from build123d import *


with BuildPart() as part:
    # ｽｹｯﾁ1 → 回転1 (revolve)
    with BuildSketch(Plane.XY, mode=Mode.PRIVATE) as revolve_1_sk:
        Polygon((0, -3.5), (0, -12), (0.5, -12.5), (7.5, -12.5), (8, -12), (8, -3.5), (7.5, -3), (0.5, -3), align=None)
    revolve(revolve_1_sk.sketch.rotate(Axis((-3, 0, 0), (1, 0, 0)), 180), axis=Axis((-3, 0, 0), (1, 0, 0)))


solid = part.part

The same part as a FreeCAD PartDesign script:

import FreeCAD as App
import Part
import Sketcher
Q = App.Units.Quantity

doc = App.newDocument("Part")
body = doc.addObject("PartDesign::Body", "Body")

sketch1 = doc.addObject("Sketcher::SketchObject", "Sketch")
body.addObject(sketch1)
sketch1.AttachmentSupport = (doc.XY_Plane, [""])
sketch1.MapMode = "FlatFace"
sketch1.addGeometry(Part.LineSegment(App.Vector(0, -3.5, 0), App.Vector(0, -12, 0)), False)
sketch1.addGeometry(Part.LineSegment(App.Vector(0, -12, 0), App.Vector(0.5, -12.5, 0)), False)
sketch1.addGeometry(Part.LineSegment(App.Vector(0.5, -12.5, 0), App.Vector(7.5, -12.5, 0)), False)
sketch1.addGeometry(Part.LineSegment(App.Vector(7.5, -12.5, 0), App.Vector(8, -12, 0)), False)
sketch1.addGeometry(Part.LineSegment(App.Vector(8, -12, 0), App.Vector(8, -3.5, 0)), False)
sketch1.addGeometry(Part.LineSegment(App.Vector(8, -3.5, 0), App.Vector(7.5, -3, 0)), False)
sketch1.addGeometry(Part.LineSegment(App.Vector(7.5, -3, 0), App.Vector(0.5, -3, 0)), False)
sketch1.addGeometry(Part.LineSegment(App.Vector(0.5, -3, 0), App.Vector(0, -3.5, 0)), False)
sketch1.addConstraint(Sketcher.Constraint("Coincident", 0, 2, 1, 1))
sketch1.addConstraint(Sketcher.Constraint("Coincident", 1, 2, 2, 1))
sketch1.addConstraint(Sketcher.Constraint("Coincident", 2, 2, 3, 1))
sketch1.addConstraint(Sketcher.Constraint("Coincident", 3, 2, 4, 1))
sketch1.addConstraint(Sketcher.Constraint("Coincident", 4, 2, 5, 1))
sketch1.addConstraint(Sketcher.Constraint("Coincident", 5, 2, 6, 1))
sketch1.addConstraint(Sketcher.Constraint("Coincident", 6, 2, 7, 1))
sketch1.addConstraint(Sketcher.Constraint("Coincident", 7, 2, 0, 1))
sketch1.addConstraint(Sketcher.Constraint("Vertical", 0))
sketch1.addConstraint(Sketcher.Constraint("Horizontal", 2))
sketch1.addConstraint(Sketcher.Constraint("Vertical", 4))
sketch1.addConstraint(Sketcher.Constraint("Horizontal", 6))
sketch1.addConstraint(Sketcher.Constraint("PointOnObject", 0, 2, -2))
sketch1.addConstraint(Sketcher.Constraint("Perpendicular", 1, 3))
sketch1.addConstraint(Sketcher.Constraint("Perpendicular", 3, 5))
sketch1.addConstraint(Sketcher.Constraint("Perpendicular", 5, 7))
sketch1.addConstraint(Sketcher.Constraint("Horizontal", 0, 2, 3, 2))
sketch1.addConstraint(Sketcher.Constraint("Horizontal", 4, 2, 7, 2))
sketch1.addConstraint(Sketcher.Constraint("Vertical", 2, 2, 5, 2))
sketch1.addConstraint(Sketcher.Constraint("Vertical", 1, 2, 6, 2))
sketch1.addConstraint(Sketcher.Constraint("DistanceX", 2, 1, 2, 2, Q("7 mm")))
sketch1.addConstraint(Sketcher.Constraint("DistanceY", 0, 2, 0, 1, Q("8.5 mm")))
sketch1.addConstraint(Sketcher.Constraint("DistanceY", 0, 2, -1, 1, Q("12 mm")))
sketch1.addConstraint(Sketcher.Constraint("DistanceX", -1, 1, 3, 2, Q("8 mm")))
revolution = doc.addObject("PartDesign::Revolution", "Revolution")
body.addObject(revolution)
revolution.Profile = sketch1
revolution.ReferenceAxis = (sketch1, ["H_Axis"])
revolution.Angle = 360

doc.recompute()
